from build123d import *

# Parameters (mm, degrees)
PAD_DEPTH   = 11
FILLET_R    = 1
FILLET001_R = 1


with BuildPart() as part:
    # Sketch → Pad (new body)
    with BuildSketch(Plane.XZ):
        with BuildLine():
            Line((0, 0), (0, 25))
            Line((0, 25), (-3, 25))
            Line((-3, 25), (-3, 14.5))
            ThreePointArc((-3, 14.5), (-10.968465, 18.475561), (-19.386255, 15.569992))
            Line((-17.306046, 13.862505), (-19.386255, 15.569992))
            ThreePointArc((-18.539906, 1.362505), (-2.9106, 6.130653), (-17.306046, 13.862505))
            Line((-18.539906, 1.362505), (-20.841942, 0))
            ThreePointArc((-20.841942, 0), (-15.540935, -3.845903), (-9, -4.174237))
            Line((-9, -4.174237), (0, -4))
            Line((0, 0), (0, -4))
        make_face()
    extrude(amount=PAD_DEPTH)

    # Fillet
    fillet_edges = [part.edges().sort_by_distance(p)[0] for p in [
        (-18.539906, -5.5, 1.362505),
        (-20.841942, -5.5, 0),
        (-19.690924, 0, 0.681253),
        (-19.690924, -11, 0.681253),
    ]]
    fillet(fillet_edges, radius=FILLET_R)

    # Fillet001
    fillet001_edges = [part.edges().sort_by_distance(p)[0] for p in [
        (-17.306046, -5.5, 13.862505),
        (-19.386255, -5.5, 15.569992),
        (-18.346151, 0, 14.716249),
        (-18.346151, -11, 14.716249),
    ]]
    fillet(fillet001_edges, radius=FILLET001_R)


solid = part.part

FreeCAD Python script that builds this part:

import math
import FreeCAD as App
import Part
import Sketcher
Q = App.Units.Quantity


def edges_at(feature, points):
    """Names of the edges that pass closest to the given points."""
    edges = feature.Shape.Edges
    near = lambda p: min(range(len(edges)), key=lambda i: edges[i].distToShape(Part.Vertex(*p))[0])
    return sorted({f"Edge{near(p) + 1}" for p in points})

doc = App.newDocument("Part")
params = doc.addObject("Spreadsheet::Sheet", "Params")
for row, (alias, value) in enumerate([
    ("sketch1_radius", "11.5 mm"),
    ("sketch1_width", "3 mm"),
    ("sketch1_height", "29 mm"),
    ("sketch1_radius2", "8.85 mm"),
    ("sketch1_height2", "10.5 mm"),
    ("pad1_length", "11 mm"),
    ("fillet_radius", "1 mm"),
    ("fillet2_radius", "1 mm"),
], start=1):
    params.set(f"A{row}", alias)
    params.set(f"B{row}", "=" + value)
    params.setAlias(f"B{row}", alias)

body = doc.addObject("PartDesign::Body", "Body")

# Sketch on XZ plane
sketch1 = body.newObject("Sketcher::SketchObject", "Sketch")
sketch1.AttachmentSupport = (doc.getObject("XZ_Plane"), [""])
sketch1.MapMode = "FlatFace"
sketch1.addGeometry(Part.LineSegment(App.Vector(0, 25, 0), App.Vector(-3, 25, 0)), False)
sketch1.addGeometry(Part.LineSegment(App.Vector(-3, 25, 0), App.Vector(-3, 14.5, 0)), False)
sketch1.addGeometry(Part.ArcOfCircle(Part.Circle(App.Vector(-11.717798, 7, 0), App.Vector(0, 0, 1), 11.5), math.radians(40.705706), math.radians(131.822286)), False)
sketch1.addGeometry(Part.LineSegment(App.Vector(-19.386255, 15.569992, 0), App.Vector(-17.306046, 13.862505, 0)), False)
sketch1.addGeometry(Part.ArcOfCircle(Part.Circle(App.Vector(-11.717798, 6.999999, 0), App.Vector(0, 0, 1), 8.85), math.radians(-140.431149), math.radians(129.156477)), False)
sketch1.addGeometry(Part.LineSegment(App.Vector(-18.539906, 1.362505, 0), App.Vector(-20.841942, 0, 0)), False)
sketch1.addGeometry(Part.ArcOfCircle(Part.Circle(App.Vector(-11.717797, 7.000003, 0), App.Vector(0, 0, 1), 11.500003), math.radians(-142.504741), math.radians(-76.329958)), False)
sketch1.addGeometry(Part.LineSegment(App.Vector(-9, -4.174237, 0), App.Vector(0, -4, 0)), False)
sketch1.addGeometry(Part.LineSegment(App.Vector(0, -4, 0), App.Vector(0, 25, 0)), False)
sketch1.addConstraint(Sketcher.Constraint("Coincident", 0, 2, 1, 1))
sketch1.addConstraint(Sketcher.Constraint("Coincident", 1, 2, 2, 1))
sketch1.addConstraint(Sketcher.Constraint("Coincident", 2, 2, 3, 1))
sketch1.addConstraint(Sketcher.Constraint("Coincident", 3, 2, 4, 2))
sketch1.addConstraint(Sketcher.Constraint("Coincident", 4, 1, 5, 1))
sketch1.addConstraint(Sketcher.Constraint("Coincident", 5, 2, 6, 1))
sketch1.addConstraint(Sketcher.Constraint("Coincident", 6, 2, 7, 1))
sketch1.addConstraint(Sketcher.Constraint("Coincident", 7, 2, 8, 1))
sketch1.addConstraint(Sketcher.Constraint("Coincident", 8, 2, 0, 1))
sketch1.addConstraint(Sketcher.Constraint("Horizontal", 0))
sketch1.addConstraint(Sketcher.Constraint("Vertical", 1))
sketch1.addConstraint(Sketcher.Constraint("Vertical", 8))
sketch1.addConstraint(Sketcher.Constraint("Coincident", 4, 3, 2, 3))
sketch1.addConstraint(Sketcher.Constraint("Coincident", 6, 3, 2, 3))
sketch1.addConstraint(Sketcher.Constraint("PointOnObject", 5, 2, -1))
sketch1.addConstraint(Sketcher.Constraint("PointOnObject", 7, 2, -2))
sketch1.addConstraint(Sketcher.Constraint("Radius", 2, 11.5))
sketch1.addConstraint(Sketcher.Constraint("DistanceX", 0, 2, 0, 1, 3.0))
sketch1.addConstraint(Sketcher.Constraint("DistanceY", 8, 1, 8, 2, 29.0))
sketch1.addConstraint(Sketcher.Constraint("Radius", 4, 8.85))
sketch1.addConstraint(Sketcher.Constraint("DistanceY", 1, 2, 1, 1, 10.5))
sketch1.addConstraint(Sketcher.Constraint("DistanceY", -1, 1, 2, 3, 7.0))
sketch1.addConstraint(Sketcher.Constraint("DistanceY", -1, 1, 0, 2, 25.0))
sketch1.addConstraint(Sketcher.Constraint("DistanceX", 6, 2, -1, 1, 9.0))
sketch1.addConstraint(Sketcher.Constraint("Angle", 3, Q("-39.379996 deg")))
sketch1.addConstraint(Sketcher.Constraint("Angle", 5, Q("-149.380002 deg")))
sketch1.addConstraint(Sketcher.Constraint("DistanceY", 4, 1, 3, 2, 12.5))
sketch1.addConstraint(Sketcher.Constraint("Radius", 6, 11.500003))
sketch1.setExpression("Constraints[16]", "Params.sketch1_radius")
sketch1.setExpression("Constraints[17]", "Params.sketch1_width")
sketch1.setExpression("Constraints[18]", "Params.sketch1_height")
sketch1.setExpression("Constraints[19]", "Params.sketch1_radius2")
sketch1.setExpression("Constraints[20]", "Params.sketch1_height2")
pad1 = body.newObject("PartDesign::Pad", "Pad")
pad1.Profile = sketch1
pad1.setExpression("Length", "Params.pad1_length")
doc.recompute()

fillet = body.newObject("PartDesign::Fillet", "Fillet")
fillet.Base = (pad1, edges_at(pad1, [
    (-18.54, -5.5, 1.363),
    (-20.842, -5.5, 0),
    (-19.691, 0, 0.681),
    (-19.691, -11, 0.681),
]))
fillet.setExpression("Radius", "Params.fillet_radius")
doc.recompute()

fillet2 = body.newObject("PartDesign::Fillet", "Fillet001")
fillet2.Base = (fillet, edges_at(fillet, [
    (-17.306, -5.5, 13.863),
    (-19.386, -5.5, 15.57),
    (-18.346, 0, 14.716),
    (-18.346, -11, 14.716),
]))
fillet2.setExpression("Radius", "Params.fillet2_radius")

doc.recompute()
